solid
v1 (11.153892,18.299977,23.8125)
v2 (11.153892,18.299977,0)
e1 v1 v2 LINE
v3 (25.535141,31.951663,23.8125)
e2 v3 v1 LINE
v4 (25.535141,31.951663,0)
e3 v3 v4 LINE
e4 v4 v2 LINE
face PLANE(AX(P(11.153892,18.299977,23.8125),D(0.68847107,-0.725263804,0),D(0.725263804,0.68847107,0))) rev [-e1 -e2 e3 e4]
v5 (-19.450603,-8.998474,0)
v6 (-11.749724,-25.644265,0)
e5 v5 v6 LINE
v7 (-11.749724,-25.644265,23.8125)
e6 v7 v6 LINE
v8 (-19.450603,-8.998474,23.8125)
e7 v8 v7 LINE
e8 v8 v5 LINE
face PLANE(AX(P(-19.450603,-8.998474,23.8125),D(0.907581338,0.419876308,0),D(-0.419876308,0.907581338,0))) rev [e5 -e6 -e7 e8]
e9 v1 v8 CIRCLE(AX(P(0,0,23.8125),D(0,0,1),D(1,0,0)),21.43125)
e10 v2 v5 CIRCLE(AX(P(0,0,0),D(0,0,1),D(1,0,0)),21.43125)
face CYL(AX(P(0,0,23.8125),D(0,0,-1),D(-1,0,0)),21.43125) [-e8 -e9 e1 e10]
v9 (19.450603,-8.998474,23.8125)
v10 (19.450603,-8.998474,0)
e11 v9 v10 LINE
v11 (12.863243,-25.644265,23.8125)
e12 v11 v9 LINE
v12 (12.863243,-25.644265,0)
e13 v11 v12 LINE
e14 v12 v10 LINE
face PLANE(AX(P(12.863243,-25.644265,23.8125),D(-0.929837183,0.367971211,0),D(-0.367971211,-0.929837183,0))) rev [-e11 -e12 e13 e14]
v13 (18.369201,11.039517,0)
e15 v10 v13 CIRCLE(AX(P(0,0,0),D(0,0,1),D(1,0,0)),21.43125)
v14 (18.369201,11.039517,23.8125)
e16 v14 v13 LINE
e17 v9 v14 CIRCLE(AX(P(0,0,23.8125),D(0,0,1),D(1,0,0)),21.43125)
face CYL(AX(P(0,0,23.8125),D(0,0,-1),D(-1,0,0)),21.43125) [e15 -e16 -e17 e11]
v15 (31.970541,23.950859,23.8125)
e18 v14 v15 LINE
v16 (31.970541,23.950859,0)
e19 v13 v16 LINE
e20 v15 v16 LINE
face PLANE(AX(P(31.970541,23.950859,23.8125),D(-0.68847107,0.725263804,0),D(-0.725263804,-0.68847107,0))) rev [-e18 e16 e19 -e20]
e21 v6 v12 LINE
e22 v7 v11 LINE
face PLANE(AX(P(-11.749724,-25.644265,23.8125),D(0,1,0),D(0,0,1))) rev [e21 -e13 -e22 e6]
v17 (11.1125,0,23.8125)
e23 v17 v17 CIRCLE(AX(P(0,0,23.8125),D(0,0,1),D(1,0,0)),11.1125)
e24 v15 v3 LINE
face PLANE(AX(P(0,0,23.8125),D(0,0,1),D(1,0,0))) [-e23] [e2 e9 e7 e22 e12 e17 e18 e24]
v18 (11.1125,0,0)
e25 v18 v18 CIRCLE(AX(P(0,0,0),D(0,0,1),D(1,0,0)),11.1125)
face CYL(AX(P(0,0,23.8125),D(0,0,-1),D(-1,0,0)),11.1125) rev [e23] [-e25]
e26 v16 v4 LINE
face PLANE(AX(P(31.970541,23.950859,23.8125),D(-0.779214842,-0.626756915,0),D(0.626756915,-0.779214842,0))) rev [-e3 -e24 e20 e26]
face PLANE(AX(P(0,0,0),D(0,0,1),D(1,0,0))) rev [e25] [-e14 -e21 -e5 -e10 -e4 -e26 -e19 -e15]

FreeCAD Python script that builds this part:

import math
import FreeCAD as App
import Part
import Sketcher

V = App.Vector
Q = App.Units.Quantity

doc = App.newDocument("Part")
body = doc.addObject("PartDesign::Body", "Body")

# Sketch on XY plane
sketch1 = body.newObject("Sketcher::SketchObject", "Sketch")
sketch1.AttachmentSupport = (doc.getObject("XY_Plane"), [""])
sketch1.MapMode = "FlatFace"
sketch1.addGeometry([
    Part.LineSegment(V(-19, -9, 0), V(-12, -26, 0)),  # 0
    Part.LineSegment(V(-12, -26, 0), V(13, -26, 0)),  # 1
    Part.LineSegment(V(13, -26, 0), V(19, -9, 0)),  # 2
    Part.ArcOfCircle(Part.Circle(V(0, 0, 0), V(0, 0, 1), 21), math.radians(-25), math.radians(31)),  # 3
    Part.LineSegment(V(18, 11, 0), V(32, 24, 0)),  # 4
    Part.LineSegment(V(32, 24, 0), V(26, 32, 0)),  # 5
    Part.LineSegment(V(26, 32, 0), V(11, 18, 0)),  # 6
    Part.ArcOfCircle(Part.Circle(V(0, 0, 0), V(0, 0, 1), 21), math.radians(59), math.radians(205)),  # 7
    Part.Circle(V(0, 0, 0), V(0, 0, 1), 11),  # 8
], False)
sketch1.addConstraint([
    Sketcher.Constraint("Coincident", 0, 2, 1, 1),
    Sketcher.Constraint("Coincident", 1, 2, 2, 1),
    Sketcher.Constraint("Coincident", 2, 2, 3, 1),
    Sketcher.Constraint("Coincident", 3, 2, 4, 1),
    Sketcher.Constraint("Coincident", 4, 2, 5, 1),
    Sketcher.Constraint("Coincident", 5, 2, 6, 1),
    Sketcher.Constraint("Coincident", 6, 2, 7, 1),
    Sketcher.Constraint("Tangent", 7, 2, 0, 1),
    Sketcher.Constraint("Horizontal", 1),
    Sketcher.Constraint("Coincident", 3, 3, -1, 1),
    Sketcher.Constraint("Coincident", 7, 3, -1, 1),
    Sketcher.Constraint("Coincident", 8, 3, -1, 1),
    Sketcher.Constraint("Equal", 3, 7),
    Sketcher.Constraint("Parallel", 4, 6),
    Sketcher.Constraint("Horizontal", 2, 2, 7, 2),
    Sketcher.Constraint("Diameter", 8, Q("0.875 in")),
    Sketcher.Constraint("Radius", 3, Q("0.84375 in")),
    Sketcher.Constraint("DistanceX", -1, 1, 3, 2, Q("18.369201 mm")),
    Sketcher.Constraint("DistanceX", 3, 2, 2, 2, Q("1.081402 mm")),
    Sketcher.Constraint("DistanceX", 5, 2, 4, 2, Q("6.4354 mm")),
    Sketcher.Constraint("Distance", 6, Q("19.82899 mm")),
    Sketcher.Constraint("DistanceX", 1, 1, 1, 2, Q("24.612967 mm")),
    Sketcher.Constraint("DistanceX", -1, 1, 4, 2, Q("31.970541 mm")),
    Sketcher.Constraint("DistanceY", -1, 1, 4, 2, Q("23.950859 mm")),
    Sketcher.Constraint("DistanceX", 1, 2, 2, 2, Q("6.58736 mm")),
])
pad1 = body.newObject("PartDesign::Pad", "Pad")
pad1.Profile = sketch1
pad1.Length = Q("0.9375 in")

doc.recompute()
